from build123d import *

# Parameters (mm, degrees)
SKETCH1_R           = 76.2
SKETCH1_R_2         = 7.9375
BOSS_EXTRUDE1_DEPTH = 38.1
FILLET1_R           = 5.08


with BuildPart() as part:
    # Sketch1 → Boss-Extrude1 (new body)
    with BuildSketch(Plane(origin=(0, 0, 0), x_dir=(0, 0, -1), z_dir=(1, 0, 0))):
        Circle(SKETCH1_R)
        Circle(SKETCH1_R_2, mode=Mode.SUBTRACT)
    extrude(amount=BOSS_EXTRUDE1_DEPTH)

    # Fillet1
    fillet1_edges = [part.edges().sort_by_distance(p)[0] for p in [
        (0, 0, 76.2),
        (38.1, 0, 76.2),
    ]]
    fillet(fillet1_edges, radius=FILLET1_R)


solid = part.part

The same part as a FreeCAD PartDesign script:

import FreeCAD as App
import Part
import Sketcher
from FreeCAD import Vector
Q = App.Units.Quantity


def edges_at(feature, points):
    """Names of the edges that pass closest to the given points."""
    edges = feature.Shape.Edges
    near = lambda p: min(range(len(edges)), key=lambda i: edges[i].distToShape(Part.Vertex(*p))[0])
    return sorted({f"Edge{near(p) + 1}" for p in points})

doc = App.newDocument("Part")
body = doc.addObject("PartDesign::Body", "Body")

# Sketch on YZ plane
sketch1 = body.newObject("Sketcher::SketchObject", "Sketch")
sketch1.AttachmentSupport = (doc.getObject("YZ_Plane"), [""])
sketch1.MapMode = "FlatFace"
sketch1.addGeometry(Part.Circle(Vector(0, 0, 0), Vector(0, 0, 1), 76), False)
sketch1.addGeometry(Part.Circle(Vector(0, 0, 0), Vector(0, 0, 1), 8), False)
sketch1.addConstraint(Sketcher.Constraint("Coincident", 0, 3, -1, 1))
sketch1.addConstraint(Sketcher.Constraint("Coincident", 1, 3, -1, 1))
sketch1.addConstraint(Sketcher.Constraint("Diameter", 0, Q("6 in")))
sketch1.addConstraint(Sketcher.Constraint("Diameter", 1, Q("0.625 in")))
pad1 = body.newObject("PartDesign::Pad", "Pad")
pad1.Profile = sketch1
pad1.Length = Q("1.5 in")
doc.recompute()

fillet = body.newObject("PartDesign::Fillet", "Fillet")
fillet.Base = (pad1, edges_at(pad1, [(0, 0, 76.2), (38.1, 0, 76.2)]))
fillet.Radius = Q("0.2 in")

doc.recompute()
